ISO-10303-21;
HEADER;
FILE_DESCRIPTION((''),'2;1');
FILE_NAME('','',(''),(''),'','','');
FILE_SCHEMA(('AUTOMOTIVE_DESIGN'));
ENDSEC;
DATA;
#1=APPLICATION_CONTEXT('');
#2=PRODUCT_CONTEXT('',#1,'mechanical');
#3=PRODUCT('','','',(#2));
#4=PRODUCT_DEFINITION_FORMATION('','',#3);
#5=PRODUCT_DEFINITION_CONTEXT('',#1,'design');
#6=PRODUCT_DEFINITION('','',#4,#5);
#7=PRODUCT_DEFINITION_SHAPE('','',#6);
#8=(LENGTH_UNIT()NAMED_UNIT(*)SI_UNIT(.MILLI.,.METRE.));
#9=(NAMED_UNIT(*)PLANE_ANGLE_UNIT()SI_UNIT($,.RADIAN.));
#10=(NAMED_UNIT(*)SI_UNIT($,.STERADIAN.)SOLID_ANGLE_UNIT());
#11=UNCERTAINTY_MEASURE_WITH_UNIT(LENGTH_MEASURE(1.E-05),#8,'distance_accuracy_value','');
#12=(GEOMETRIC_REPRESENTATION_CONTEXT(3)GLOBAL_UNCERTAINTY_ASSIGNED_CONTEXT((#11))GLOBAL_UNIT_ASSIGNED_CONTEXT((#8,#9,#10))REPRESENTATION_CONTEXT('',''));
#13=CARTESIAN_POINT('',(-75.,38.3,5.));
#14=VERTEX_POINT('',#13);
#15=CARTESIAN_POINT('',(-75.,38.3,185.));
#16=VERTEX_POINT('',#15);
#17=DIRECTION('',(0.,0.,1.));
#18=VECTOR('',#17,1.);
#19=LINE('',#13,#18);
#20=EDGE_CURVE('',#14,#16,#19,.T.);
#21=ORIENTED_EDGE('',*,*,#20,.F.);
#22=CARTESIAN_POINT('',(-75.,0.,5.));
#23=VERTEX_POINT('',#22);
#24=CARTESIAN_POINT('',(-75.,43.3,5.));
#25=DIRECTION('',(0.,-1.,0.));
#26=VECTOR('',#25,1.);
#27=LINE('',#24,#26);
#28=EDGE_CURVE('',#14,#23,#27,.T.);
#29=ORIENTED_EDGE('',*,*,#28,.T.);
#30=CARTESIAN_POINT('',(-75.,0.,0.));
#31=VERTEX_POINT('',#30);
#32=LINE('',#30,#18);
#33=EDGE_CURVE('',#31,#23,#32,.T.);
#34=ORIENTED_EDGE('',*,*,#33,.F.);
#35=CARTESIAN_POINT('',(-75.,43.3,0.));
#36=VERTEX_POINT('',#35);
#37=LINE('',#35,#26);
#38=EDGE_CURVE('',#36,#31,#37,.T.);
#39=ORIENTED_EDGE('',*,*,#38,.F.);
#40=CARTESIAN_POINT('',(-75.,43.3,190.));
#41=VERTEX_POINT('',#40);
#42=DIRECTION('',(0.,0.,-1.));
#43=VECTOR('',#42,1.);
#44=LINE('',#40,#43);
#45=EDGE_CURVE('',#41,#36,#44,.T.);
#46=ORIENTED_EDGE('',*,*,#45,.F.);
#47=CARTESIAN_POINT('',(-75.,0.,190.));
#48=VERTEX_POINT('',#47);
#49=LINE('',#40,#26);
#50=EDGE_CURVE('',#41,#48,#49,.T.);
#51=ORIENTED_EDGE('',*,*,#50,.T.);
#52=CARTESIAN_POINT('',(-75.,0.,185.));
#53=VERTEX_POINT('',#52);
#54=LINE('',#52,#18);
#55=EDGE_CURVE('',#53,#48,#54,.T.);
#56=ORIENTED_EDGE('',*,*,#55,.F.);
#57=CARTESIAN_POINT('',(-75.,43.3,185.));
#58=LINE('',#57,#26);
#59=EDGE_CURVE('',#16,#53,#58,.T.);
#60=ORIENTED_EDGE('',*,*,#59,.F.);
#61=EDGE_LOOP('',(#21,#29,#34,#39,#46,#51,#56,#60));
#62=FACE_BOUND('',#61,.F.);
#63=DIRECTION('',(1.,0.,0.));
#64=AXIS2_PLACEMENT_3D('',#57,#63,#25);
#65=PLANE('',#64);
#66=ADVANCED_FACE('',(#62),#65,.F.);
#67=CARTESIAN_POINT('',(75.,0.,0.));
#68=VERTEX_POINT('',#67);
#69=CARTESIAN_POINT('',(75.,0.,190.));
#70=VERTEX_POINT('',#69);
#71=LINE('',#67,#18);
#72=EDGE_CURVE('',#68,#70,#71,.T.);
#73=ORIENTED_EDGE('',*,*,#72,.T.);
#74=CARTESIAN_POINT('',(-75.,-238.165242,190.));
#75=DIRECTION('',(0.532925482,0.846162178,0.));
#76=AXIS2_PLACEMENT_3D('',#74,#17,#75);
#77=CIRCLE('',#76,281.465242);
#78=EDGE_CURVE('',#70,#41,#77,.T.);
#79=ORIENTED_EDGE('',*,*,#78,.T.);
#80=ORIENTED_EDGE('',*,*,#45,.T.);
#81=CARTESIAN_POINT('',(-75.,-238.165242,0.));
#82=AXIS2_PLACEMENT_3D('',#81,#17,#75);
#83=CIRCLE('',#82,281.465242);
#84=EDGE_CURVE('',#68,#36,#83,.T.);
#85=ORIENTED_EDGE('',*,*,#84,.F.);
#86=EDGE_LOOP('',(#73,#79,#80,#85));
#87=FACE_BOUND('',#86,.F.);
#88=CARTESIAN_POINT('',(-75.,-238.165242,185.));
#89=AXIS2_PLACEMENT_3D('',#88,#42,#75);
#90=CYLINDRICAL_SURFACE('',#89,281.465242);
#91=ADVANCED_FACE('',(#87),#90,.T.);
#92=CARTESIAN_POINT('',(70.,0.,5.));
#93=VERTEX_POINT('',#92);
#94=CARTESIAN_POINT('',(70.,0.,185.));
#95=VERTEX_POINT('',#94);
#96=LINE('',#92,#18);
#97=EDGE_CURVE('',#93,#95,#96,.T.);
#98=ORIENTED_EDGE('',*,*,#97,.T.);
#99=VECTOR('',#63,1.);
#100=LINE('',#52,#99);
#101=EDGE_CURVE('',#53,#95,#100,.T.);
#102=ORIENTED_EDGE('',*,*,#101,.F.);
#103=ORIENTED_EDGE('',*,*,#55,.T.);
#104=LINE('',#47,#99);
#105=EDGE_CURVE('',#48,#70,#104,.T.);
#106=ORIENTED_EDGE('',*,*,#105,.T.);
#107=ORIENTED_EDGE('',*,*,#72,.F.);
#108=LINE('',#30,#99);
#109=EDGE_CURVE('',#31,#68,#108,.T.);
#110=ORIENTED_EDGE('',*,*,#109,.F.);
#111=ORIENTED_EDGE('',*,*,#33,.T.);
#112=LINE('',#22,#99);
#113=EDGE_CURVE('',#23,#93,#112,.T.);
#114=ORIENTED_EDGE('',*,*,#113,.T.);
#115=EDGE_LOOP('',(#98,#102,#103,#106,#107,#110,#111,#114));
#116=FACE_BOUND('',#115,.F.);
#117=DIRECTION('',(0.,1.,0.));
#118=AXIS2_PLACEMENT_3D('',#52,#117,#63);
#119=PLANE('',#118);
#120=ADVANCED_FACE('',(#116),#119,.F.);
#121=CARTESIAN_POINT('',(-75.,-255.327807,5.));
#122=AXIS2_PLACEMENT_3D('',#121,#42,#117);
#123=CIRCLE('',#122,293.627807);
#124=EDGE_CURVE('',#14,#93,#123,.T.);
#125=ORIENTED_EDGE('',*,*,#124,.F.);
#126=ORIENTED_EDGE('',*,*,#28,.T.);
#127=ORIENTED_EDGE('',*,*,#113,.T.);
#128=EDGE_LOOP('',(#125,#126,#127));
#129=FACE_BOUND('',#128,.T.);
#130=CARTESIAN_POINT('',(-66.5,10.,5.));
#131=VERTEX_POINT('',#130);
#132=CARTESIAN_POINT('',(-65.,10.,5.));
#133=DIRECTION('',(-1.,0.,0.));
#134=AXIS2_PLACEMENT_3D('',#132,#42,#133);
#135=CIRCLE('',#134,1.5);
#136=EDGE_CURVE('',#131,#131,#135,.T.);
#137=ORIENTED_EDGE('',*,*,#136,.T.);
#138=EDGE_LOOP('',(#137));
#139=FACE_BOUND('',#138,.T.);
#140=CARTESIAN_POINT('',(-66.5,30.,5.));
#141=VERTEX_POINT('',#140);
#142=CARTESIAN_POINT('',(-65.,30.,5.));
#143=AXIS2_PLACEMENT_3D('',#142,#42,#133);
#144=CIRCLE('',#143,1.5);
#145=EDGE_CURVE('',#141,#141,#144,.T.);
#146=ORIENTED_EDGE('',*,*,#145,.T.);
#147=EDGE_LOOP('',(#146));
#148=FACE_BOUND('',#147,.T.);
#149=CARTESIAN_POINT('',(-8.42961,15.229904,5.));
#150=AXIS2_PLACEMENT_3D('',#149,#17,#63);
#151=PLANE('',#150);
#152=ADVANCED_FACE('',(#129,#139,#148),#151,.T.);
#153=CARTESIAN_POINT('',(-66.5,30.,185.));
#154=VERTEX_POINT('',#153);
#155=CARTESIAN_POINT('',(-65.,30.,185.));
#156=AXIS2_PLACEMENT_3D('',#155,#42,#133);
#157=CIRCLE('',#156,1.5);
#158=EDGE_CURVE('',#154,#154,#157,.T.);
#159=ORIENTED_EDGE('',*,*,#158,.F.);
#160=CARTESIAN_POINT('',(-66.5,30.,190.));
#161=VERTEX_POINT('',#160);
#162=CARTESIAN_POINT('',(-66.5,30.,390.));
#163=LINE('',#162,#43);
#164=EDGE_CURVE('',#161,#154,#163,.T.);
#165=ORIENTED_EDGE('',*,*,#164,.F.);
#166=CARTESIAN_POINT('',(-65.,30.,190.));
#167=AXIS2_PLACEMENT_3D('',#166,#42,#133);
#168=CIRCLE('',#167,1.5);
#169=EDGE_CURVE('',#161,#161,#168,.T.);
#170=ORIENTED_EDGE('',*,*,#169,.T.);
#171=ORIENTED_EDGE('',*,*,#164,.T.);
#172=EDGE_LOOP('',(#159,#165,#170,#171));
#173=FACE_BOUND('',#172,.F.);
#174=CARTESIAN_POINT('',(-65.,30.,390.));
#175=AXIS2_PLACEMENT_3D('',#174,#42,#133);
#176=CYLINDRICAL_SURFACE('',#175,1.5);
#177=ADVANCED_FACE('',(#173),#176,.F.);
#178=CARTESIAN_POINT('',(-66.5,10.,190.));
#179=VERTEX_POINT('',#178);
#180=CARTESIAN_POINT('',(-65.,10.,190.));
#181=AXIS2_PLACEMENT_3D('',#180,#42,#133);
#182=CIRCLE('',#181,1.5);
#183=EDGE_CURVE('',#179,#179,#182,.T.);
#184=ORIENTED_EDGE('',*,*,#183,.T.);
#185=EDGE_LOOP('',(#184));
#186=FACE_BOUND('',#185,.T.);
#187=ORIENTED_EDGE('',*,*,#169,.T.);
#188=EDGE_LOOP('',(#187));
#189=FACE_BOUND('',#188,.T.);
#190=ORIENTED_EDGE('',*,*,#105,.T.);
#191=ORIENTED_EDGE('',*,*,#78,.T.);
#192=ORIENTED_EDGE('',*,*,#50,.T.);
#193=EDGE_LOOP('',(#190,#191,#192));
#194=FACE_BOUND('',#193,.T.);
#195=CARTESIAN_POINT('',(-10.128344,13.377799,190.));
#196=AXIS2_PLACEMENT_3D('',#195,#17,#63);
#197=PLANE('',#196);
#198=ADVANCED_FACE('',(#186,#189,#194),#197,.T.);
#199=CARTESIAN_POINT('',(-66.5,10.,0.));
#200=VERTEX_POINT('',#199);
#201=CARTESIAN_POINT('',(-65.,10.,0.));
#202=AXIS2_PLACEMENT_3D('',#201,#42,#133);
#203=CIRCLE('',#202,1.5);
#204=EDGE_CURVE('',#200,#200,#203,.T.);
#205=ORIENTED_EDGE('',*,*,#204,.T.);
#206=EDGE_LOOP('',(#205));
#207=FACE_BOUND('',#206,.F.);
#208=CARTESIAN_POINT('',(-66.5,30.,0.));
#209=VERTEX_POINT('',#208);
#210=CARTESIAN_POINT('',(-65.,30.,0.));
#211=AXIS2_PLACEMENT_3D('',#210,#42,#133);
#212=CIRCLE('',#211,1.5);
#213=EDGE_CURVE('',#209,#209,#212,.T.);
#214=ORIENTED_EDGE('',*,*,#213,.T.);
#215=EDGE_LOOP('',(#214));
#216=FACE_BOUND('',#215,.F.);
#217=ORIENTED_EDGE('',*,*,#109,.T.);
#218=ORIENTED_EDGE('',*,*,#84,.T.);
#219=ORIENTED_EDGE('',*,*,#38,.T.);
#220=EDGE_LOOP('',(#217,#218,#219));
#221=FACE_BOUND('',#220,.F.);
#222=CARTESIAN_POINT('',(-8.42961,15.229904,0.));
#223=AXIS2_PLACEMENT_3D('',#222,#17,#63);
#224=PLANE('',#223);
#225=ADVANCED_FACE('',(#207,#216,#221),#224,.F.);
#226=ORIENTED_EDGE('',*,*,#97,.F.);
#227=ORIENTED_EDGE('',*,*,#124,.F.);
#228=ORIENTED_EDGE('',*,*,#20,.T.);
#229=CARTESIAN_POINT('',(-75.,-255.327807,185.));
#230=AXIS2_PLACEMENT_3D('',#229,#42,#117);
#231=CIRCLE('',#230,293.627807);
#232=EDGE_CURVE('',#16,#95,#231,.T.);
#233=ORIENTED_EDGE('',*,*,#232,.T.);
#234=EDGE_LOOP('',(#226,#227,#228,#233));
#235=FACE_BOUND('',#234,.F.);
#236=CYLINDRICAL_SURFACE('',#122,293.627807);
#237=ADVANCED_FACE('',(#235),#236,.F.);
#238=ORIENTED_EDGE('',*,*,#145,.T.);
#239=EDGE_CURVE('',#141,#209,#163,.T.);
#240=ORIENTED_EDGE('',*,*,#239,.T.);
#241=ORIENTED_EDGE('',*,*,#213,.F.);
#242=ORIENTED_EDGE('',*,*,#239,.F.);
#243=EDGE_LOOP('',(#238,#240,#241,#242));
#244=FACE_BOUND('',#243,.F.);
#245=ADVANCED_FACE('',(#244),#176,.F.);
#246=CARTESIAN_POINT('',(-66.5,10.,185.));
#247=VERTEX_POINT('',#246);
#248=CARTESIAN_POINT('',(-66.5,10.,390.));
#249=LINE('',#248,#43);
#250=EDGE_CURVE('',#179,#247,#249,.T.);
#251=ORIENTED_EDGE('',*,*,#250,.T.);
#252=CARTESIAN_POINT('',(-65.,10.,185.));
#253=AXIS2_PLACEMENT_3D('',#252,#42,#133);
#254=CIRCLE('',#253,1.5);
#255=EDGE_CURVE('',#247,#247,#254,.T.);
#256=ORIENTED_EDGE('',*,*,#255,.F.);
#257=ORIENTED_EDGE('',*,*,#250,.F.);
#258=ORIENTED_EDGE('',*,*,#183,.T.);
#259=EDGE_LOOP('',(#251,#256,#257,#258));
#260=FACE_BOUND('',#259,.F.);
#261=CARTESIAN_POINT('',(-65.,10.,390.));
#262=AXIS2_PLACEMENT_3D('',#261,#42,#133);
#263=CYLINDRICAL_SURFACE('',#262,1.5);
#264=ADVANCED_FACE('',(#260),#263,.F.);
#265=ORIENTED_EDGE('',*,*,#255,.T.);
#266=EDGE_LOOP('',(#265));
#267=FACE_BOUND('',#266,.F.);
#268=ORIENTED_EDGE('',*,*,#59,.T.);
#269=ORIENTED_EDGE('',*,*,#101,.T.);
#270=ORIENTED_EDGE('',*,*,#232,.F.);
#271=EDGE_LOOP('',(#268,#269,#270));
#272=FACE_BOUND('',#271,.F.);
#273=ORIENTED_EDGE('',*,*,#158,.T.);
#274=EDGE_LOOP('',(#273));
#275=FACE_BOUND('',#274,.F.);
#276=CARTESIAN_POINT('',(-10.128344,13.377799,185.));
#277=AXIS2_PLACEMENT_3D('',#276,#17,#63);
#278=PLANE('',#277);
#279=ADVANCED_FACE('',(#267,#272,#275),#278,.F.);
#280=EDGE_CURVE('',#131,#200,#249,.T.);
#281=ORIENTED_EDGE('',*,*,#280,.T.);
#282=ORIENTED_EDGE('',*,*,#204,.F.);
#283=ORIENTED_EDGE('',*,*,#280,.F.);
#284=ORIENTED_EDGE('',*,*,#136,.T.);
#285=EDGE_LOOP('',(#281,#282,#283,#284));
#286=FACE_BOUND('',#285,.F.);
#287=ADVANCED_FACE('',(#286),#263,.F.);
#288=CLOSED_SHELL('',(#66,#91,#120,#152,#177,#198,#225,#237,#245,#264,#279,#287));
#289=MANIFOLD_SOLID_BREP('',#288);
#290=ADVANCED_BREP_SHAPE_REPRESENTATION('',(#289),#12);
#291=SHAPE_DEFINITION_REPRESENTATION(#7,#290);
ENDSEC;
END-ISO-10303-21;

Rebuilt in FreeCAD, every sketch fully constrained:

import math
import FreeCAD as App
import Part
import Sketcher

V = App.Vector
Q = App.Units.Quantity

doc = App.newDocument("Part")
body = doc.addObject("PartDesign::Body", "Body")

# Sketch on XY plane
sketch1 = doc.addObject("Sketcher::SketchObject", "Sketch")
body.addObject(sketch1)
sketch1.AttachmentSupport = (doc.XY_Plane, [""])
sketch1.MapMode = "FlatFace"
sketch1.addGeometry([
    Part.LineSegment(V(-75, 0, 0), V(75, 0, 0)),
    Part.ArcOfCircle(Part.Circle(V(-75, -238, 0), V(0, 0, 1), 281), math.radians(58), math.radians(90)),
    Part.LineSegment(V(-75, 43, 0), V(-75, 0, 0)),
], False)
sketch1.addConstraint([
    Sketcher.Constraint("Coincident", 0, 2, 1, 1),
    Sketcher.Constraint("Coincident", 1, 2, 2, 1),
    Sketcher.Constraint("Coincident", 2, 2, 0, 1),
    Sketcher.Constraint("Horizontal", 0),
    Sketcher.Constraint("Vertical", 2),
    Sketcher.Constraint("Symmetric", 0, 2, 2, 2, -1, 1),
    Sketcher.Constraint("DistanceX", 0, 1, 0, 2, Q("150 mm")),
    Sketcher.Constraint("DistanceY", 2, 2, 2, 1, Q("43.3 mm")),
    Sketcher.Constraint("DistanceX", 1, 3, -1, 1, Q("75 mm")),
])
pad1 = doc.addObject("PartDesign::Pad", "Pad")
body.addObject(pad1)
pad1.Profile = sketch1
pad1.Length = 5

# Sketch on XY plane
sketch2 = doc.addObject("Sketcher::SketchObject", "Sketch001")
body.addObject(sketch2)
sketch2.AttachmentSupport = (doc.XY_Plane, [""])
sketch2.MapMode = "FlatFace"
sketch2.AttachmentOffset = App.Placement(V(0, 0, 5), App.Rotation())
sketch2.addGeometry([
    Part.ArcOfCircle(Part.Circle(V(-75, -238, 0), V(0, 0, 1), 281), math.radians(58), math.radians(90)),
    Part.LineSegment(V(-75, 43, 0), V(-75, 38, 0)),
    Part.ArcOfCircle(Part.Circle(V(-75, -255, 0), V(0, 0, 1), 294), math.radians(60), math.radians(90)),
    Part.LineSegment(V(70, 0, 0), V(75, 0, 0)),
], False)
sketch2.addConstraint([
    Sketcher.Constraint("Coincident", 0, 2, 1, 1),
    Sketcher.Constraint("Coincident", 1, 2, 2, 2),
    Sketcher.Constraint("Coincident", 2, 1, 3, 1),
    Sketcher.Constraint("Coincident", 3, 2, 0, 1),
    Sketcher.Constraint("Vertical", 1),
    Sketcher.Constraint("Horizontal", 3),
    Sketcher.Constraint("PointOnObject", 2, 1, -1),
    Sketcher.Constraint("Vertical", 0, 3, 2, 3),
    Sketcher.Constraint("Vertical", 2, 3, 0, 2),
    Sketcher.Constraint("Equal", 3, 1),
    Sketcher.Constraint("DistanceX", 3, 1, 3, 2, Q("5 mm")),
    Sketcher.Constraint("DistanceX", 0, 3, -1, 1, Q("75 mm")),
    Sketcher.Constraint("DistanceX", -1, 1, 2, 1, Q("70 mm")),
    Sketcher.Constraint("DistanceY", -1, 1, 0, 2, Q("43.3 mm")),
])
pad2 = doc.addObject("PartDesign::Pad", "Pad001")
body.addObject(pad2)
pad2.Profile = sketch2
pad2.Length = 180

# Sketch on XY plane
sketch3 = doc.addObject("Sketcher::SketchObject", "Sketch002")
body.addObject(sketch3)
sketch3.AttachmentSupport = (doc.XY_Plane, [""])
sketch3.MapMode = "FlatFace"
sketch3.AttachmentOffset = App.Placement(V(0, 0, 185), App.Rotation())
sketch3.addGeometry([
    Part.LineSegment(V(-75, 0, 0), V(75, 0, 0)),
    Part.ArcOfCircle(Part.Circle(V(-75, -238, 0), V(0, 0, 1), 281), math.radians(58), math.radians(90)),
    Part.LineSegment(V(-75, 43, 0), V(-75, 0, 0)),
], False)
sketch3.addConstraint([
    Sketcher.Constraint("Coincident", 0, 2, 1, 1),
    Sketcher.Constraint("Coincident", 1, 2, 2, 1),
    Sketcher.Constraint("Coincident", 2, 2, 0, 1),
    Sketcher.Constraint("Horizontal", 0),
    Sketcher.Constraint("Vertical", 2),
    Sketcher.Constraint("Symmetric", 0, 2, 2, 2, -1, 1),
    Sketcher.Constraint("DistanceX", 0, 1, 0, 2, Q("150 mm")),
    Sketcher.Constraint("DistanceY", 2, 2, 2, 1, Q("43.3 mm")),
    Sketcher.Constraint("DistanceX", 1, 3, -1, 1, Q("75 mm")),
])
pad3 = doc.addObject("PartDesign::Pad", "Pad002")
body.addObject(pad3)
pad3.Profile = sketch3
pad3.Length = 5

# Sketch on XY plane
sketch4 = doc.addObject("Sketcher::SketchObject", "Sketch003")
body.addObject(sketch4)
sketch4.AttachmentSupport = (doc.XY_Plane, [""])
sketch4.MapMode = "FlatFace"
sketch4.AttachmentOffset = App.Placement(V(0, 0, 190), App.Rotation())
sketch4.addGeometry([
    Part.Circle(V(-65, 30, 0), V(0, 0, 1), 1.5),
    Part.Circle(V(-65, 10, 0), V(0, 0, 1), 1.5),
], False)
sketch4.addConstraint([
    Sketcher.Constraint("Equal", 0, 1),
    Sketcher.Constraint("Vertical", 0, 3, 1, 3),
    Sketcher.Constraint("Diameter", 0, Q("3 mm")),
    Sketcher.Constraint("DistanceX", 0, 3, -1, 1, Q("65 mm")),
    Sketcher.Constraint("DistanceY", -1, 1, 0, 3, Q("30 mm")),
    Sketcher.Constraint("DistanceY", -1, 1, 1, 3, Q("10 mm")),
])
doc.recompute()
hole = doc.addObject("PartDesign::Hole", "Hole")
body.addObject(hole)
hole.Profile = sketch4
hole.ThreadType = "None"
hole.Diameter = 3
hole.DepthType = "Dimension"
hole.Depth = 200
hole.DrillPoint = "Angled"
hole.DrillPointAngle = 118

doc.recompute()
